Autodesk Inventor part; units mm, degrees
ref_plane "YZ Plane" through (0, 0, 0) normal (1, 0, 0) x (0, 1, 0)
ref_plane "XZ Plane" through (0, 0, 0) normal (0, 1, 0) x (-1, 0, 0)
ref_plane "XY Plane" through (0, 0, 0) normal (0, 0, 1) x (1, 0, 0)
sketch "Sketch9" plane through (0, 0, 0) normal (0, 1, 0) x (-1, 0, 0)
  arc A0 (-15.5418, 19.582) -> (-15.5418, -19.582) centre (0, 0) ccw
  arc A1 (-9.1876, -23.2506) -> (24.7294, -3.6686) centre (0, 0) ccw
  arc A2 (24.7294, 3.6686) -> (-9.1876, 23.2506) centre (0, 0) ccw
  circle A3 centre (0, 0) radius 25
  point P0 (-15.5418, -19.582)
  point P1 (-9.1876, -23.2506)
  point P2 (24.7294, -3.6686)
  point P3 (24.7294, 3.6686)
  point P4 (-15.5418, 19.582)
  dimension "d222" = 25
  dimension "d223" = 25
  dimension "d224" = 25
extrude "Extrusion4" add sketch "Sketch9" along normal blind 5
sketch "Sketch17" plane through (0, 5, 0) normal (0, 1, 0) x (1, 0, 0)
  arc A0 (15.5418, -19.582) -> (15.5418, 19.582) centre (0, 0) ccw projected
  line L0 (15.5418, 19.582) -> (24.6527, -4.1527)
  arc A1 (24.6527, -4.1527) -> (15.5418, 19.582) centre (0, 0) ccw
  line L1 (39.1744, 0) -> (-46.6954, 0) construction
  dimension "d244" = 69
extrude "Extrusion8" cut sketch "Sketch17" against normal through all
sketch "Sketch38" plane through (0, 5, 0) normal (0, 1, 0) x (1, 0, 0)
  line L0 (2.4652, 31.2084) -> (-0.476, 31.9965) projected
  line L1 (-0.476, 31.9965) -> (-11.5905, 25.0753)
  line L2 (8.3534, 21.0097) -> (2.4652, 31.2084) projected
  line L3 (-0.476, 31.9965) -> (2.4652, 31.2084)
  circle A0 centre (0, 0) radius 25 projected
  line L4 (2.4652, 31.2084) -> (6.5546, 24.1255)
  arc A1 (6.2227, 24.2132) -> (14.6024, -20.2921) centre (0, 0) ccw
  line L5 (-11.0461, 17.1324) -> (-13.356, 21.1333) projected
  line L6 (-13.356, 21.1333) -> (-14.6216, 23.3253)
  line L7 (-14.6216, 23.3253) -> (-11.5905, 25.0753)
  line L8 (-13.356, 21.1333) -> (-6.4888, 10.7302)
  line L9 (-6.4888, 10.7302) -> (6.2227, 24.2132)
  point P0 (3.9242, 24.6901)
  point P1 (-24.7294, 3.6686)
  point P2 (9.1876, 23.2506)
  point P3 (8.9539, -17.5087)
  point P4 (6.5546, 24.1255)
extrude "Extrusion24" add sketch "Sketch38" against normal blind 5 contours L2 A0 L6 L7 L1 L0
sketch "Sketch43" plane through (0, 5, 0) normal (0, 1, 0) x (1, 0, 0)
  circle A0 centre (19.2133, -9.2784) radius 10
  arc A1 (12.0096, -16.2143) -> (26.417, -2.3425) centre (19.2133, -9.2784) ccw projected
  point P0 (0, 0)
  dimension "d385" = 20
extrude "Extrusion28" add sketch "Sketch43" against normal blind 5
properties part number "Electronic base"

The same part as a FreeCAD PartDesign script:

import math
import FreeCAD as App
import Part
import Sketcher
Q = App.Units.Quantity

doc = App.newDocument("Part")
body = doc.addObject("PartDesign::Body", "Body")

# Sketch on XZ plane
sketch1 = body.newObject("Sketcher::SketchObject", "Sketch")
sketch1.AttachmentSupport = (doc.getObject("XZ_Plane"), [""])
sketch1.MapMode = "FlatFace"
sketch1.addGeometry([
    Part.ArcOfCircle(Part.Circle(App.Vector(0, 0, 0), App.Vector(0, 0, 1), 25), math.radians(-68.438279), math.radians(68.438279)),
    Part.ArcOfCircle(Part.Circle(App.Vector(0, 0, 0), App.Vector(0, 0, 1), 25.000037), math.radians(-171.561729), math.radians(-68.438279)),
    Part.ArcOfCircle(Part.Circle(App.Vector(0, 0, 0), App.Vector(0, 0, 1), 25), math.radians(171.561729), math.radians(188.438271)),
    Part.ArcOfCircle(Part.Circle(App.Vector(0, 0, 0), App.Vector(0, 0, 1), 25.000048), math.radians(68.438279), math.radians(171.561729)),
], False)
sketch1.addConstraint([
    Sketcher.Constraint("Tangent", 0, 1, 1, 2),
    Sketcher.Constraint("Tangent", 1, 1, 2, 2),
    Sketcher.Constraint("Tangent", 2, 1, 3, 2),
    Sketcher.Constraint("Tangent", 3, 1, 0, 2),
    Sketcher.Constraint("Coincident", 0, 3, -1, 1),
    Sketcher.Constraint("Equal", 0, 1),
    Sketcher.Constraint("Vertical", 1, 1, 2, 1),
    Sketcher.Constraint("Vertical", 0, 1, 3, 1),
    Sketcher.Constraint("Radius", 0, 25.0),
    Sketcher.Constraint("DistanceX", 1, 1, 0, 1, 33.917),
    Sketcher.Constraint("DistanceY", 0, 1, 1, 1, 19.582),
])
pad1 = body.newObject("PartDesign::Pad", "Pad")
pad1.Profile = sketch1
pad1.Length = 5
pad1.Reversed = True

# Sketch on XZ plane
sketch2 = body.newObject("Sketcher::SketchObject", "Sketch001")
sketch2.AttachmentSupport = (doc.getObject("XZ_Plane"), [""])
sketch2.MapMode = "FlatFace"
sketch2.AttachmentOffset = App.Placement(App.Vector(0, 0, -5), App.Rotation())
sketch2.addGeometry([
    Part.LineSegment(App.Vector(15.5418, -19.582, 0), App.Vector(24.6527, 4.1527, 0)),
    Part.ArcOfCircle(Part.Circle(App.Vector(0, 0, 0), App.Vector(0, 0, 1), 25.000045), math.radians(-51.561747), math.radians(9.561602)),
], False)
sketch2.addConstraint([
    Sketcher.Constraint("Coincident", 0, 1, 1, 1),
    Sketcher.Constraint("Coincident", 1, 2, 0, 2),
    Sketcher.Constraint("Coincident", 1, 3, -1, 1),
    Sketcher.Constraint("Angle", 0, Q("69 deg")),
    Sketcher.Constraint("Radius", 1, 25.0),
    Sketcher.Constraint("DistanceY", 0, 1, -1, 1, 19.582),
])
pocket1 = body.newObject("PartDesign::Pocket", "Pocket")
pocket1.Profile = sketch2
pocket1.Type = "ThroughAll"
pocket1.Reversed = True

# Sketch on XZ plane
sketch3 = body.newObject("Sketcher::SketchObject", "Sketch002")
sketch3.AttachmentSupport = (doc.getObject("XZ_Plane"), [""])
sketch3.MapMode = "FlatFace"
sketch3.AttachmentOffset = App.Placement(App.Vector(0, 0, -5), App.Rotation())
sketch3.addGeometry([
    Part.LineSegment(App.Vector(6.554524, -24.125456, 0), App.Vector(2.4652, -31.2084, 0)),  # 0
    Part.LineSegment(App.Vector(2.4652, -31.2084, 0), App.Vector(-0.476, -31.9965, 0)),  # 1
    Part.LineSegment(App.Vector(-0.476, -31.9965, 0), App.Vector(-11.5905, -25.0753, 0)),  # 2
    Part.LineSegment(App.Vector(-11.5905, -25.0753, 0), App.Vector(-14.6216, -23.3253, 0)),  # 3
    Part.LineSegment(App.Vector(-14.6216, -23.3253, 0), App.Vector(-13.356, -21.1333, 0)),  # 4
    Part.ArcOfCircle(Part.Circle(App.Vector(0, 0, 0), App.Vector(0, 0, 1), 25), math.radians(-122.292411), math.radians(-74.800339)),  # 5
], False)
sketch3.addConstraint([
    Sketcher.Constraint("Coincident", 0, 2, 1, 1),
    Sketcher.Constraint("Coincident", 1, 2, 2, 1),
    Sketcher.Constraint("Coincident", 2, 2, 3, 1),
    Sketcher.Constraint("Coincident", 3, 2, 4, 1),
    Sketcher.Constraint("Coincident", 4, 2, 5, 1),
    Sketcher.Constraint("Coincident", 5, 2, 0, 1),
    Sketcher.Constraint("Coincident", 5, 3, -1, 1),
    Sketcher.Constraint("Perpendicular", 0, 3),
    Sketcher.Constraint("Perpendicular", 3, 4),
    Sketcher.Constraint("Radius", 5, 25.0),
    Sketcher.Constraint("Angle", 0, Q("-120 deg")),
    Sketcher.Constraint("Angle", 1, Q("-164.9999 deg")),
    Sketcher.Constraint("Distance", 3, 3.5),
    Sketcher.Constraint("DistanceX", 4, 2, 1, 2, 12.88),
    Sketcher.Constraint("Distance", 1, 3.045),
    Sketcher.Constraint("DistanceX", 1, 2, -1, 1, 0.476),
    Sketcher.Constraint("DistanceY", 0, 2, 2, 2, 6.133),
    Sketcher.Constraint("DistanceY", 3, 2, 4, 2, 2.192),
])
pad2 = body.newObject("PartDesign::Pad", "Pad001")
pad2.Profile = sketch3
pad2.Length = 5

# Sketch on XZ plane
sketch4 = body.newObject("Sketcher::SketchObject", "Sketch003")
sketch4.AttachmentSupport = (doc.getObject("XZ_Plane"), [""])
sketch4.MapMode = "FlatFace"
sketch4.AttachmentOffset = App.Placement(App.Vector(0, 0, -5), App.Rotation())
sketch4.addGeometry(Part.Circle(App.Vector(19.2133, 9.2784, 0), App.Vector(0, 0, 1), 10), False)
sketch4.addConstraint([
    Sketcher.Constraint("Diameter", 0, 20.0),
    Sketcher.Constraint("DistanceX", -1, 1, 0, 3, 19.2133),
    Sketcher.Constraint("DistanceY", -1, 1, 0, 3, 9.2784),
])
pad3 = body.newObject("PartDesign::Pad", "Pad002")
pad3.Profile = sketch4
pad3.Length = 5

doc.recompute()
